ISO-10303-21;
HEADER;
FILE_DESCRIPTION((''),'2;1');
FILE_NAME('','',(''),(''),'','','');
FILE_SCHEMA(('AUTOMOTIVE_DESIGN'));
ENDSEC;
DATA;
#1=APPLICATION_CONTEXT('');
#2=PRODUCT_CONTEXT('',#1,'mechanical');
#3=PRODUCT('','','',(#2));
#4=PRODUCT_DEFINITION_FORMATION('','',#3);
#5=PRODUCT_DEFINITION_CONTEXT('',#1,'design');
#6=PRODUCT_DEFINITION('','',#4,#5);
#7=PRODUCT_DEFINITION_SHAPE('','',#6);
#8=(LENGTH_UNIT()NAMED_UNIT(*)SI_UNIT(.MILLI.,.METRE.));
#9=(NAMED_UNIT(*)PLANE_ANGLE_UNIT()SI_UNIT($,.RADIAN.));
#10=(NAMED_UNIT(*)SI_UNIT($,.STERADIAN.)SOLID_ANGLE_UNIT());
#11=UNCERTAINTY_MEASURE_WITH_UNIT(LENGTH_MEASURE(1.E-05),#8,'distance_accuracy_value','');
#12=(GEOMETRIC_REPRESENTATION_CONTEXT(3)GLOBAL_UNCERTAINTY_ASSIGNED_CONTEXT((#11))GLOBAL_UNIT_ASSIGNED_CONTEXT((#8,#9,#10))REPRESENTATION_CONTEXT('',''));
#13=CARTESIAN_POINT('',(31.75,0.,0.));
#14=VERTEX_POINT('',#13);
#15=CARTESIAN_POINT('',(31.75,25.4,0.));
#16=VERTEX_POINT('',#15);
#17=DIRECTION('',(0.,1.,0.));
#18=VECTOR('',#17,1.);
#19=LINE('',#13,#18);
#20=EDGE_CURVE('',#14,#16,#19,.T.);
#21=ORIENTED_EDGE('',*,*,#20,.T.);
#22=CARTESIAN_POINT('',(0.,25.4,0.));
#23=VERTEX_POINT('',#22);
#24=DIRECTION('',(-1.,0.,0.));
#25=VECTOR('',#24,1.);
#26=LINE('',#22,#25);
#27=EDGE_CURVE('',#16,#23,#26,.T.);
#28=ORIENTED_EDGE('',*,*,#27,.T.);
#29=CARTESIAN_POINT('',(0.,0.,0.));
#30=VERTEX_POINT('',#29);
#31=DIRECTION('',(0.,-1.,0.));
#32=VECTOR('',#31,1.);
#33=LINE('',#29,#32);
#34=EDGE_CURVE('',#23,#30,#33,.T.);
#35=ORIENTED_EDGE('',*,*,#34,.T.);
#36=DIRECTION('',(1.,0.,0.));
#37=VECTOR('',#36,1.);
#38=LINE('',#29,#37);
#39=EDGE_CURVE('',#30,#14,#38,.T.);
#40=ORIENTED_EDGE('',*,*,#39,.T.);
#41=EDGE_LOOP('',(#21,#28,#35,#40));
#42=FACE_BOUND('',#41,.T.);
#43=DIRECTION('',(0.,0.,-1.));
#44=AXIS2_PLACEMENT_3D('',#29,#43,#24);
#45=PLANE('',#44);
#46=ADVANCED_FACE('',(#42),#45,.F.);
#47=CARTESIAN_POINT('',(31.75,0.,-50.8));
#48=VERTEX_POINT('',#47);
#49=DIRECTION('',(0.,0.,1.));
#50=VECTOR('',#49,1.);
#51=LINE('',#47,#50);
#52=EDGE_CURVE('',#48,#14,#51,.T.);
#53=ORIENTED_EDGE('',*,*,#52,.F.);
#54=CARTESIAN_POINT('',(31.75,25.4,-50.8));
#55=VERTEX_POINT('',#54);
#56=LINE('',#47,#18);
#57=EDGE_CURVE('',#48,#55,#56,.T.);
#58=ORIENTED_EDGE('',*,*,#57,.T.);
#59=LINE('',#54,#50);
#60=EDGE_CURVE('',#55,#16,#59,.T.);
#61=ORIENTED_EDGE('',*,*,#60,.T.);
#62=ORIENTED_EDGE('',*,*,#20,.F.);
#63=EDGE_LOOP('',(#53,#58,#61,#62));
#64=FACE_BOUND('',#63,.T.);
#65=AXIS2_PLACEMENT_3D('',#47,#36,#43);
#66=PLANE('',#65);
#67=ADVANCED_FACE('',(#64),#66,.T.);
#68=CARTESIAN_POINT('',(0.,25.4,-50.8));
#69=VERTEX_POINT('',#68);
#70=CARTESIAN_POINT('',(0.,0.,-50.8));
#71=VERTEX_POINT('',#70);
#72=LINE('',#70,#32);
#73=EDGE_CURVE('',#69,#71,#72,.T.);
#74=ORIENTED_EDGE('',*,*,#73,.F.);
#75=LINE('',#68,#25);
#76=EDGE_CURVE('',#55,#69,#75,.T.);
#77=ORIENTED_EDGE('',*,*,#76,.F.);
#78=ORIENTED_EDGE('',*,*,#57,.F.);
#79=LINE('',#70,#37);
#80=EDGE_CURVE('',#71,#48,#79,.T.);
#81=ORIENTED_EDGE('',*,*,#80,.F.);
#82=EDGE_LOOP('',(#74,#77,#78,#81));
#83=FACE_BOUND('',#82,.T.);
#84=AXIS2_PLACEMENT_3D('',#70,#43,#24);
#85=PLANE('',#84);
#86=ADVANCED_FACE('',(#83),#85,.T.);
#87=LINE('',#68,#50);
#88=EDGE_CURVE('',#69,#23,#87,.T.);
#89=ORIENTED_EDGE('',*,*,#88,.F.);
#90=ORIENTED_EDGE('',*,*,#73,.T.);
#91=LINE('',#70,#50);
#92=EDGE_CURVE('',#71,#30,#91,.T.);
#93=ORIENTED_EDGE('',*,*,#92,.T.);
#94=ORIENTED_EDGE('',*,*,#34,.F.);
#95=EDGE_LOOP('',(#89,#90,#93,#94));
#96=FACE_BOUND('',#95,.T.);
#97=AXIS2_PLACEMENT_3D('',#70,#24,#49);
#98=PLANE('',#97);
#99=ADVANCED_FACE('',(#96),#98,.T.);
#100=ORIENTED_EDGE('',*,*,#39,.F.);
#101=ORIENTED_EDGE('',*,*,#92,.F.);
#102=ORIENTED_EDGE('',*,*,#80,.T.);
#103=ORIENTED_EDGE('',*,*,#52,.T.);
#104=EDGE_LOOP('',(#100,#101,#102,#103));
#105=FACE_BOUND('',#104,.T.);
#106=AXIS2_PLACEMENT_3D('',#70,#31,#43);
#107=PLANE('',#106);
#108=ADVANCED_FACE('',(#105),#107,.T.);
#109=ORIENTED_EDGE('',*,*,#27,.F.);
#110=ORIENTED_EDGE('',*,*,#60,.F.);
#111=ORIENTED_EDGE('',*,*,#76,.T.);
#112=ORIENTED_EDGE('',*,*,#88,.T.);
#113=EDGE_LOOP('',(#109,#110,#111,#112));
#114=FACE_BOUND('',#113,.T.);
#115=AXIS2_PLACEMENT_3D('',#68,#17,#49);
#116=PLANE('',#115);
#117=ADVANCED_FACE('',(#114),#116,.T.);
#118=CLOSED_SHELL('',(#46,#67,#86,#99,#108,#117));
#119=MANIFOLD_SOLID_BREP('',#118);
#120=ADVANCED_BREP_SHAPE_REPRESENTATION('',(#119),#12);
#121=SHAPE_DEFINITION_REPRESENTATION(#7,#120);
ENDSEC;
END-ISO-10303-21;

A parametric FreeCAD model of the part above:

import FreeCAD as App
import Part
import Sketcher

V = App.Vector
Q = App.Units.Quantity

doc = App.newDocument("Part")
body = doc.addObject("PartDesign::Body", "Body")

# Sketch on XY plane
sketch1 = doc.addObject("Sketcher::SketchObject", "Sketch")
body.addObject(sketch1)
sketch1.AttachmentSupport = (doc.XY_Plane, [""])
sketch1.MapMode = "FlatFace"
sketch1.addGeometry(Part.LineSegment(V(0, 25.4, 0), V(0, 0, 0)), False)
sketch1.addGeometry(Part.LineSegment(V(0, 0, 0), V(31.75, 0, 0)), False)
sketch1.addGeometry(Part.LineSegment(V(31.75, 0, 0), V(31.75, 25.4, 0)), False)
sketch1.addGeometry(Part.LineSegment(V(31.75, 25.4, 0), V(0, 25.4, 0)), False)
sketch1.addConstraint(Sketcher.Constraint("Coincident", 0, 2, 1, 1))
sketch1.addConstraint(Sketcher.Constraint("Coincident", 1, 2, 2, 1))
sketch1.addConstraint(Sketcher.Constraint("Coincident", 2, 2, 3, 1))
sketch1.addConstraint(Sketcher.Constraint("Coincident", 3, 2, 0, 1))
sketch1.addConstraint(Sketcher.Constraint("Vertical", 0))
sketch1.addConstraint(Sketcher.Constraint("Horizontal", 1))
sketch1.addConstraint(Sketcher.Constraint("Vertical", 2))
sketch1.addConstraint(Sketcher.Constraint("Horizontal", 3))
sketch1.addConstraint(Sketcher.Constraint("Coincident", 0, 2, -1, 1))
sketch1.addConstraint(Sketcher.Constraint("DistanceY", 0, 2, 0, 1, Q("1 in")))
sketch1.addConstraint(Sketcher.Constraint("DistanceX", 1, 1, 1, 2, Q("1.25 in")))
pad1 = doc.addObject("PartDesign::Pad", "Pad")
body.addObject(pad1)
pad1.Profile = sketch1
pad1.Length = Q("2 in")
pad1.Reversed = True

doc.recompute()
